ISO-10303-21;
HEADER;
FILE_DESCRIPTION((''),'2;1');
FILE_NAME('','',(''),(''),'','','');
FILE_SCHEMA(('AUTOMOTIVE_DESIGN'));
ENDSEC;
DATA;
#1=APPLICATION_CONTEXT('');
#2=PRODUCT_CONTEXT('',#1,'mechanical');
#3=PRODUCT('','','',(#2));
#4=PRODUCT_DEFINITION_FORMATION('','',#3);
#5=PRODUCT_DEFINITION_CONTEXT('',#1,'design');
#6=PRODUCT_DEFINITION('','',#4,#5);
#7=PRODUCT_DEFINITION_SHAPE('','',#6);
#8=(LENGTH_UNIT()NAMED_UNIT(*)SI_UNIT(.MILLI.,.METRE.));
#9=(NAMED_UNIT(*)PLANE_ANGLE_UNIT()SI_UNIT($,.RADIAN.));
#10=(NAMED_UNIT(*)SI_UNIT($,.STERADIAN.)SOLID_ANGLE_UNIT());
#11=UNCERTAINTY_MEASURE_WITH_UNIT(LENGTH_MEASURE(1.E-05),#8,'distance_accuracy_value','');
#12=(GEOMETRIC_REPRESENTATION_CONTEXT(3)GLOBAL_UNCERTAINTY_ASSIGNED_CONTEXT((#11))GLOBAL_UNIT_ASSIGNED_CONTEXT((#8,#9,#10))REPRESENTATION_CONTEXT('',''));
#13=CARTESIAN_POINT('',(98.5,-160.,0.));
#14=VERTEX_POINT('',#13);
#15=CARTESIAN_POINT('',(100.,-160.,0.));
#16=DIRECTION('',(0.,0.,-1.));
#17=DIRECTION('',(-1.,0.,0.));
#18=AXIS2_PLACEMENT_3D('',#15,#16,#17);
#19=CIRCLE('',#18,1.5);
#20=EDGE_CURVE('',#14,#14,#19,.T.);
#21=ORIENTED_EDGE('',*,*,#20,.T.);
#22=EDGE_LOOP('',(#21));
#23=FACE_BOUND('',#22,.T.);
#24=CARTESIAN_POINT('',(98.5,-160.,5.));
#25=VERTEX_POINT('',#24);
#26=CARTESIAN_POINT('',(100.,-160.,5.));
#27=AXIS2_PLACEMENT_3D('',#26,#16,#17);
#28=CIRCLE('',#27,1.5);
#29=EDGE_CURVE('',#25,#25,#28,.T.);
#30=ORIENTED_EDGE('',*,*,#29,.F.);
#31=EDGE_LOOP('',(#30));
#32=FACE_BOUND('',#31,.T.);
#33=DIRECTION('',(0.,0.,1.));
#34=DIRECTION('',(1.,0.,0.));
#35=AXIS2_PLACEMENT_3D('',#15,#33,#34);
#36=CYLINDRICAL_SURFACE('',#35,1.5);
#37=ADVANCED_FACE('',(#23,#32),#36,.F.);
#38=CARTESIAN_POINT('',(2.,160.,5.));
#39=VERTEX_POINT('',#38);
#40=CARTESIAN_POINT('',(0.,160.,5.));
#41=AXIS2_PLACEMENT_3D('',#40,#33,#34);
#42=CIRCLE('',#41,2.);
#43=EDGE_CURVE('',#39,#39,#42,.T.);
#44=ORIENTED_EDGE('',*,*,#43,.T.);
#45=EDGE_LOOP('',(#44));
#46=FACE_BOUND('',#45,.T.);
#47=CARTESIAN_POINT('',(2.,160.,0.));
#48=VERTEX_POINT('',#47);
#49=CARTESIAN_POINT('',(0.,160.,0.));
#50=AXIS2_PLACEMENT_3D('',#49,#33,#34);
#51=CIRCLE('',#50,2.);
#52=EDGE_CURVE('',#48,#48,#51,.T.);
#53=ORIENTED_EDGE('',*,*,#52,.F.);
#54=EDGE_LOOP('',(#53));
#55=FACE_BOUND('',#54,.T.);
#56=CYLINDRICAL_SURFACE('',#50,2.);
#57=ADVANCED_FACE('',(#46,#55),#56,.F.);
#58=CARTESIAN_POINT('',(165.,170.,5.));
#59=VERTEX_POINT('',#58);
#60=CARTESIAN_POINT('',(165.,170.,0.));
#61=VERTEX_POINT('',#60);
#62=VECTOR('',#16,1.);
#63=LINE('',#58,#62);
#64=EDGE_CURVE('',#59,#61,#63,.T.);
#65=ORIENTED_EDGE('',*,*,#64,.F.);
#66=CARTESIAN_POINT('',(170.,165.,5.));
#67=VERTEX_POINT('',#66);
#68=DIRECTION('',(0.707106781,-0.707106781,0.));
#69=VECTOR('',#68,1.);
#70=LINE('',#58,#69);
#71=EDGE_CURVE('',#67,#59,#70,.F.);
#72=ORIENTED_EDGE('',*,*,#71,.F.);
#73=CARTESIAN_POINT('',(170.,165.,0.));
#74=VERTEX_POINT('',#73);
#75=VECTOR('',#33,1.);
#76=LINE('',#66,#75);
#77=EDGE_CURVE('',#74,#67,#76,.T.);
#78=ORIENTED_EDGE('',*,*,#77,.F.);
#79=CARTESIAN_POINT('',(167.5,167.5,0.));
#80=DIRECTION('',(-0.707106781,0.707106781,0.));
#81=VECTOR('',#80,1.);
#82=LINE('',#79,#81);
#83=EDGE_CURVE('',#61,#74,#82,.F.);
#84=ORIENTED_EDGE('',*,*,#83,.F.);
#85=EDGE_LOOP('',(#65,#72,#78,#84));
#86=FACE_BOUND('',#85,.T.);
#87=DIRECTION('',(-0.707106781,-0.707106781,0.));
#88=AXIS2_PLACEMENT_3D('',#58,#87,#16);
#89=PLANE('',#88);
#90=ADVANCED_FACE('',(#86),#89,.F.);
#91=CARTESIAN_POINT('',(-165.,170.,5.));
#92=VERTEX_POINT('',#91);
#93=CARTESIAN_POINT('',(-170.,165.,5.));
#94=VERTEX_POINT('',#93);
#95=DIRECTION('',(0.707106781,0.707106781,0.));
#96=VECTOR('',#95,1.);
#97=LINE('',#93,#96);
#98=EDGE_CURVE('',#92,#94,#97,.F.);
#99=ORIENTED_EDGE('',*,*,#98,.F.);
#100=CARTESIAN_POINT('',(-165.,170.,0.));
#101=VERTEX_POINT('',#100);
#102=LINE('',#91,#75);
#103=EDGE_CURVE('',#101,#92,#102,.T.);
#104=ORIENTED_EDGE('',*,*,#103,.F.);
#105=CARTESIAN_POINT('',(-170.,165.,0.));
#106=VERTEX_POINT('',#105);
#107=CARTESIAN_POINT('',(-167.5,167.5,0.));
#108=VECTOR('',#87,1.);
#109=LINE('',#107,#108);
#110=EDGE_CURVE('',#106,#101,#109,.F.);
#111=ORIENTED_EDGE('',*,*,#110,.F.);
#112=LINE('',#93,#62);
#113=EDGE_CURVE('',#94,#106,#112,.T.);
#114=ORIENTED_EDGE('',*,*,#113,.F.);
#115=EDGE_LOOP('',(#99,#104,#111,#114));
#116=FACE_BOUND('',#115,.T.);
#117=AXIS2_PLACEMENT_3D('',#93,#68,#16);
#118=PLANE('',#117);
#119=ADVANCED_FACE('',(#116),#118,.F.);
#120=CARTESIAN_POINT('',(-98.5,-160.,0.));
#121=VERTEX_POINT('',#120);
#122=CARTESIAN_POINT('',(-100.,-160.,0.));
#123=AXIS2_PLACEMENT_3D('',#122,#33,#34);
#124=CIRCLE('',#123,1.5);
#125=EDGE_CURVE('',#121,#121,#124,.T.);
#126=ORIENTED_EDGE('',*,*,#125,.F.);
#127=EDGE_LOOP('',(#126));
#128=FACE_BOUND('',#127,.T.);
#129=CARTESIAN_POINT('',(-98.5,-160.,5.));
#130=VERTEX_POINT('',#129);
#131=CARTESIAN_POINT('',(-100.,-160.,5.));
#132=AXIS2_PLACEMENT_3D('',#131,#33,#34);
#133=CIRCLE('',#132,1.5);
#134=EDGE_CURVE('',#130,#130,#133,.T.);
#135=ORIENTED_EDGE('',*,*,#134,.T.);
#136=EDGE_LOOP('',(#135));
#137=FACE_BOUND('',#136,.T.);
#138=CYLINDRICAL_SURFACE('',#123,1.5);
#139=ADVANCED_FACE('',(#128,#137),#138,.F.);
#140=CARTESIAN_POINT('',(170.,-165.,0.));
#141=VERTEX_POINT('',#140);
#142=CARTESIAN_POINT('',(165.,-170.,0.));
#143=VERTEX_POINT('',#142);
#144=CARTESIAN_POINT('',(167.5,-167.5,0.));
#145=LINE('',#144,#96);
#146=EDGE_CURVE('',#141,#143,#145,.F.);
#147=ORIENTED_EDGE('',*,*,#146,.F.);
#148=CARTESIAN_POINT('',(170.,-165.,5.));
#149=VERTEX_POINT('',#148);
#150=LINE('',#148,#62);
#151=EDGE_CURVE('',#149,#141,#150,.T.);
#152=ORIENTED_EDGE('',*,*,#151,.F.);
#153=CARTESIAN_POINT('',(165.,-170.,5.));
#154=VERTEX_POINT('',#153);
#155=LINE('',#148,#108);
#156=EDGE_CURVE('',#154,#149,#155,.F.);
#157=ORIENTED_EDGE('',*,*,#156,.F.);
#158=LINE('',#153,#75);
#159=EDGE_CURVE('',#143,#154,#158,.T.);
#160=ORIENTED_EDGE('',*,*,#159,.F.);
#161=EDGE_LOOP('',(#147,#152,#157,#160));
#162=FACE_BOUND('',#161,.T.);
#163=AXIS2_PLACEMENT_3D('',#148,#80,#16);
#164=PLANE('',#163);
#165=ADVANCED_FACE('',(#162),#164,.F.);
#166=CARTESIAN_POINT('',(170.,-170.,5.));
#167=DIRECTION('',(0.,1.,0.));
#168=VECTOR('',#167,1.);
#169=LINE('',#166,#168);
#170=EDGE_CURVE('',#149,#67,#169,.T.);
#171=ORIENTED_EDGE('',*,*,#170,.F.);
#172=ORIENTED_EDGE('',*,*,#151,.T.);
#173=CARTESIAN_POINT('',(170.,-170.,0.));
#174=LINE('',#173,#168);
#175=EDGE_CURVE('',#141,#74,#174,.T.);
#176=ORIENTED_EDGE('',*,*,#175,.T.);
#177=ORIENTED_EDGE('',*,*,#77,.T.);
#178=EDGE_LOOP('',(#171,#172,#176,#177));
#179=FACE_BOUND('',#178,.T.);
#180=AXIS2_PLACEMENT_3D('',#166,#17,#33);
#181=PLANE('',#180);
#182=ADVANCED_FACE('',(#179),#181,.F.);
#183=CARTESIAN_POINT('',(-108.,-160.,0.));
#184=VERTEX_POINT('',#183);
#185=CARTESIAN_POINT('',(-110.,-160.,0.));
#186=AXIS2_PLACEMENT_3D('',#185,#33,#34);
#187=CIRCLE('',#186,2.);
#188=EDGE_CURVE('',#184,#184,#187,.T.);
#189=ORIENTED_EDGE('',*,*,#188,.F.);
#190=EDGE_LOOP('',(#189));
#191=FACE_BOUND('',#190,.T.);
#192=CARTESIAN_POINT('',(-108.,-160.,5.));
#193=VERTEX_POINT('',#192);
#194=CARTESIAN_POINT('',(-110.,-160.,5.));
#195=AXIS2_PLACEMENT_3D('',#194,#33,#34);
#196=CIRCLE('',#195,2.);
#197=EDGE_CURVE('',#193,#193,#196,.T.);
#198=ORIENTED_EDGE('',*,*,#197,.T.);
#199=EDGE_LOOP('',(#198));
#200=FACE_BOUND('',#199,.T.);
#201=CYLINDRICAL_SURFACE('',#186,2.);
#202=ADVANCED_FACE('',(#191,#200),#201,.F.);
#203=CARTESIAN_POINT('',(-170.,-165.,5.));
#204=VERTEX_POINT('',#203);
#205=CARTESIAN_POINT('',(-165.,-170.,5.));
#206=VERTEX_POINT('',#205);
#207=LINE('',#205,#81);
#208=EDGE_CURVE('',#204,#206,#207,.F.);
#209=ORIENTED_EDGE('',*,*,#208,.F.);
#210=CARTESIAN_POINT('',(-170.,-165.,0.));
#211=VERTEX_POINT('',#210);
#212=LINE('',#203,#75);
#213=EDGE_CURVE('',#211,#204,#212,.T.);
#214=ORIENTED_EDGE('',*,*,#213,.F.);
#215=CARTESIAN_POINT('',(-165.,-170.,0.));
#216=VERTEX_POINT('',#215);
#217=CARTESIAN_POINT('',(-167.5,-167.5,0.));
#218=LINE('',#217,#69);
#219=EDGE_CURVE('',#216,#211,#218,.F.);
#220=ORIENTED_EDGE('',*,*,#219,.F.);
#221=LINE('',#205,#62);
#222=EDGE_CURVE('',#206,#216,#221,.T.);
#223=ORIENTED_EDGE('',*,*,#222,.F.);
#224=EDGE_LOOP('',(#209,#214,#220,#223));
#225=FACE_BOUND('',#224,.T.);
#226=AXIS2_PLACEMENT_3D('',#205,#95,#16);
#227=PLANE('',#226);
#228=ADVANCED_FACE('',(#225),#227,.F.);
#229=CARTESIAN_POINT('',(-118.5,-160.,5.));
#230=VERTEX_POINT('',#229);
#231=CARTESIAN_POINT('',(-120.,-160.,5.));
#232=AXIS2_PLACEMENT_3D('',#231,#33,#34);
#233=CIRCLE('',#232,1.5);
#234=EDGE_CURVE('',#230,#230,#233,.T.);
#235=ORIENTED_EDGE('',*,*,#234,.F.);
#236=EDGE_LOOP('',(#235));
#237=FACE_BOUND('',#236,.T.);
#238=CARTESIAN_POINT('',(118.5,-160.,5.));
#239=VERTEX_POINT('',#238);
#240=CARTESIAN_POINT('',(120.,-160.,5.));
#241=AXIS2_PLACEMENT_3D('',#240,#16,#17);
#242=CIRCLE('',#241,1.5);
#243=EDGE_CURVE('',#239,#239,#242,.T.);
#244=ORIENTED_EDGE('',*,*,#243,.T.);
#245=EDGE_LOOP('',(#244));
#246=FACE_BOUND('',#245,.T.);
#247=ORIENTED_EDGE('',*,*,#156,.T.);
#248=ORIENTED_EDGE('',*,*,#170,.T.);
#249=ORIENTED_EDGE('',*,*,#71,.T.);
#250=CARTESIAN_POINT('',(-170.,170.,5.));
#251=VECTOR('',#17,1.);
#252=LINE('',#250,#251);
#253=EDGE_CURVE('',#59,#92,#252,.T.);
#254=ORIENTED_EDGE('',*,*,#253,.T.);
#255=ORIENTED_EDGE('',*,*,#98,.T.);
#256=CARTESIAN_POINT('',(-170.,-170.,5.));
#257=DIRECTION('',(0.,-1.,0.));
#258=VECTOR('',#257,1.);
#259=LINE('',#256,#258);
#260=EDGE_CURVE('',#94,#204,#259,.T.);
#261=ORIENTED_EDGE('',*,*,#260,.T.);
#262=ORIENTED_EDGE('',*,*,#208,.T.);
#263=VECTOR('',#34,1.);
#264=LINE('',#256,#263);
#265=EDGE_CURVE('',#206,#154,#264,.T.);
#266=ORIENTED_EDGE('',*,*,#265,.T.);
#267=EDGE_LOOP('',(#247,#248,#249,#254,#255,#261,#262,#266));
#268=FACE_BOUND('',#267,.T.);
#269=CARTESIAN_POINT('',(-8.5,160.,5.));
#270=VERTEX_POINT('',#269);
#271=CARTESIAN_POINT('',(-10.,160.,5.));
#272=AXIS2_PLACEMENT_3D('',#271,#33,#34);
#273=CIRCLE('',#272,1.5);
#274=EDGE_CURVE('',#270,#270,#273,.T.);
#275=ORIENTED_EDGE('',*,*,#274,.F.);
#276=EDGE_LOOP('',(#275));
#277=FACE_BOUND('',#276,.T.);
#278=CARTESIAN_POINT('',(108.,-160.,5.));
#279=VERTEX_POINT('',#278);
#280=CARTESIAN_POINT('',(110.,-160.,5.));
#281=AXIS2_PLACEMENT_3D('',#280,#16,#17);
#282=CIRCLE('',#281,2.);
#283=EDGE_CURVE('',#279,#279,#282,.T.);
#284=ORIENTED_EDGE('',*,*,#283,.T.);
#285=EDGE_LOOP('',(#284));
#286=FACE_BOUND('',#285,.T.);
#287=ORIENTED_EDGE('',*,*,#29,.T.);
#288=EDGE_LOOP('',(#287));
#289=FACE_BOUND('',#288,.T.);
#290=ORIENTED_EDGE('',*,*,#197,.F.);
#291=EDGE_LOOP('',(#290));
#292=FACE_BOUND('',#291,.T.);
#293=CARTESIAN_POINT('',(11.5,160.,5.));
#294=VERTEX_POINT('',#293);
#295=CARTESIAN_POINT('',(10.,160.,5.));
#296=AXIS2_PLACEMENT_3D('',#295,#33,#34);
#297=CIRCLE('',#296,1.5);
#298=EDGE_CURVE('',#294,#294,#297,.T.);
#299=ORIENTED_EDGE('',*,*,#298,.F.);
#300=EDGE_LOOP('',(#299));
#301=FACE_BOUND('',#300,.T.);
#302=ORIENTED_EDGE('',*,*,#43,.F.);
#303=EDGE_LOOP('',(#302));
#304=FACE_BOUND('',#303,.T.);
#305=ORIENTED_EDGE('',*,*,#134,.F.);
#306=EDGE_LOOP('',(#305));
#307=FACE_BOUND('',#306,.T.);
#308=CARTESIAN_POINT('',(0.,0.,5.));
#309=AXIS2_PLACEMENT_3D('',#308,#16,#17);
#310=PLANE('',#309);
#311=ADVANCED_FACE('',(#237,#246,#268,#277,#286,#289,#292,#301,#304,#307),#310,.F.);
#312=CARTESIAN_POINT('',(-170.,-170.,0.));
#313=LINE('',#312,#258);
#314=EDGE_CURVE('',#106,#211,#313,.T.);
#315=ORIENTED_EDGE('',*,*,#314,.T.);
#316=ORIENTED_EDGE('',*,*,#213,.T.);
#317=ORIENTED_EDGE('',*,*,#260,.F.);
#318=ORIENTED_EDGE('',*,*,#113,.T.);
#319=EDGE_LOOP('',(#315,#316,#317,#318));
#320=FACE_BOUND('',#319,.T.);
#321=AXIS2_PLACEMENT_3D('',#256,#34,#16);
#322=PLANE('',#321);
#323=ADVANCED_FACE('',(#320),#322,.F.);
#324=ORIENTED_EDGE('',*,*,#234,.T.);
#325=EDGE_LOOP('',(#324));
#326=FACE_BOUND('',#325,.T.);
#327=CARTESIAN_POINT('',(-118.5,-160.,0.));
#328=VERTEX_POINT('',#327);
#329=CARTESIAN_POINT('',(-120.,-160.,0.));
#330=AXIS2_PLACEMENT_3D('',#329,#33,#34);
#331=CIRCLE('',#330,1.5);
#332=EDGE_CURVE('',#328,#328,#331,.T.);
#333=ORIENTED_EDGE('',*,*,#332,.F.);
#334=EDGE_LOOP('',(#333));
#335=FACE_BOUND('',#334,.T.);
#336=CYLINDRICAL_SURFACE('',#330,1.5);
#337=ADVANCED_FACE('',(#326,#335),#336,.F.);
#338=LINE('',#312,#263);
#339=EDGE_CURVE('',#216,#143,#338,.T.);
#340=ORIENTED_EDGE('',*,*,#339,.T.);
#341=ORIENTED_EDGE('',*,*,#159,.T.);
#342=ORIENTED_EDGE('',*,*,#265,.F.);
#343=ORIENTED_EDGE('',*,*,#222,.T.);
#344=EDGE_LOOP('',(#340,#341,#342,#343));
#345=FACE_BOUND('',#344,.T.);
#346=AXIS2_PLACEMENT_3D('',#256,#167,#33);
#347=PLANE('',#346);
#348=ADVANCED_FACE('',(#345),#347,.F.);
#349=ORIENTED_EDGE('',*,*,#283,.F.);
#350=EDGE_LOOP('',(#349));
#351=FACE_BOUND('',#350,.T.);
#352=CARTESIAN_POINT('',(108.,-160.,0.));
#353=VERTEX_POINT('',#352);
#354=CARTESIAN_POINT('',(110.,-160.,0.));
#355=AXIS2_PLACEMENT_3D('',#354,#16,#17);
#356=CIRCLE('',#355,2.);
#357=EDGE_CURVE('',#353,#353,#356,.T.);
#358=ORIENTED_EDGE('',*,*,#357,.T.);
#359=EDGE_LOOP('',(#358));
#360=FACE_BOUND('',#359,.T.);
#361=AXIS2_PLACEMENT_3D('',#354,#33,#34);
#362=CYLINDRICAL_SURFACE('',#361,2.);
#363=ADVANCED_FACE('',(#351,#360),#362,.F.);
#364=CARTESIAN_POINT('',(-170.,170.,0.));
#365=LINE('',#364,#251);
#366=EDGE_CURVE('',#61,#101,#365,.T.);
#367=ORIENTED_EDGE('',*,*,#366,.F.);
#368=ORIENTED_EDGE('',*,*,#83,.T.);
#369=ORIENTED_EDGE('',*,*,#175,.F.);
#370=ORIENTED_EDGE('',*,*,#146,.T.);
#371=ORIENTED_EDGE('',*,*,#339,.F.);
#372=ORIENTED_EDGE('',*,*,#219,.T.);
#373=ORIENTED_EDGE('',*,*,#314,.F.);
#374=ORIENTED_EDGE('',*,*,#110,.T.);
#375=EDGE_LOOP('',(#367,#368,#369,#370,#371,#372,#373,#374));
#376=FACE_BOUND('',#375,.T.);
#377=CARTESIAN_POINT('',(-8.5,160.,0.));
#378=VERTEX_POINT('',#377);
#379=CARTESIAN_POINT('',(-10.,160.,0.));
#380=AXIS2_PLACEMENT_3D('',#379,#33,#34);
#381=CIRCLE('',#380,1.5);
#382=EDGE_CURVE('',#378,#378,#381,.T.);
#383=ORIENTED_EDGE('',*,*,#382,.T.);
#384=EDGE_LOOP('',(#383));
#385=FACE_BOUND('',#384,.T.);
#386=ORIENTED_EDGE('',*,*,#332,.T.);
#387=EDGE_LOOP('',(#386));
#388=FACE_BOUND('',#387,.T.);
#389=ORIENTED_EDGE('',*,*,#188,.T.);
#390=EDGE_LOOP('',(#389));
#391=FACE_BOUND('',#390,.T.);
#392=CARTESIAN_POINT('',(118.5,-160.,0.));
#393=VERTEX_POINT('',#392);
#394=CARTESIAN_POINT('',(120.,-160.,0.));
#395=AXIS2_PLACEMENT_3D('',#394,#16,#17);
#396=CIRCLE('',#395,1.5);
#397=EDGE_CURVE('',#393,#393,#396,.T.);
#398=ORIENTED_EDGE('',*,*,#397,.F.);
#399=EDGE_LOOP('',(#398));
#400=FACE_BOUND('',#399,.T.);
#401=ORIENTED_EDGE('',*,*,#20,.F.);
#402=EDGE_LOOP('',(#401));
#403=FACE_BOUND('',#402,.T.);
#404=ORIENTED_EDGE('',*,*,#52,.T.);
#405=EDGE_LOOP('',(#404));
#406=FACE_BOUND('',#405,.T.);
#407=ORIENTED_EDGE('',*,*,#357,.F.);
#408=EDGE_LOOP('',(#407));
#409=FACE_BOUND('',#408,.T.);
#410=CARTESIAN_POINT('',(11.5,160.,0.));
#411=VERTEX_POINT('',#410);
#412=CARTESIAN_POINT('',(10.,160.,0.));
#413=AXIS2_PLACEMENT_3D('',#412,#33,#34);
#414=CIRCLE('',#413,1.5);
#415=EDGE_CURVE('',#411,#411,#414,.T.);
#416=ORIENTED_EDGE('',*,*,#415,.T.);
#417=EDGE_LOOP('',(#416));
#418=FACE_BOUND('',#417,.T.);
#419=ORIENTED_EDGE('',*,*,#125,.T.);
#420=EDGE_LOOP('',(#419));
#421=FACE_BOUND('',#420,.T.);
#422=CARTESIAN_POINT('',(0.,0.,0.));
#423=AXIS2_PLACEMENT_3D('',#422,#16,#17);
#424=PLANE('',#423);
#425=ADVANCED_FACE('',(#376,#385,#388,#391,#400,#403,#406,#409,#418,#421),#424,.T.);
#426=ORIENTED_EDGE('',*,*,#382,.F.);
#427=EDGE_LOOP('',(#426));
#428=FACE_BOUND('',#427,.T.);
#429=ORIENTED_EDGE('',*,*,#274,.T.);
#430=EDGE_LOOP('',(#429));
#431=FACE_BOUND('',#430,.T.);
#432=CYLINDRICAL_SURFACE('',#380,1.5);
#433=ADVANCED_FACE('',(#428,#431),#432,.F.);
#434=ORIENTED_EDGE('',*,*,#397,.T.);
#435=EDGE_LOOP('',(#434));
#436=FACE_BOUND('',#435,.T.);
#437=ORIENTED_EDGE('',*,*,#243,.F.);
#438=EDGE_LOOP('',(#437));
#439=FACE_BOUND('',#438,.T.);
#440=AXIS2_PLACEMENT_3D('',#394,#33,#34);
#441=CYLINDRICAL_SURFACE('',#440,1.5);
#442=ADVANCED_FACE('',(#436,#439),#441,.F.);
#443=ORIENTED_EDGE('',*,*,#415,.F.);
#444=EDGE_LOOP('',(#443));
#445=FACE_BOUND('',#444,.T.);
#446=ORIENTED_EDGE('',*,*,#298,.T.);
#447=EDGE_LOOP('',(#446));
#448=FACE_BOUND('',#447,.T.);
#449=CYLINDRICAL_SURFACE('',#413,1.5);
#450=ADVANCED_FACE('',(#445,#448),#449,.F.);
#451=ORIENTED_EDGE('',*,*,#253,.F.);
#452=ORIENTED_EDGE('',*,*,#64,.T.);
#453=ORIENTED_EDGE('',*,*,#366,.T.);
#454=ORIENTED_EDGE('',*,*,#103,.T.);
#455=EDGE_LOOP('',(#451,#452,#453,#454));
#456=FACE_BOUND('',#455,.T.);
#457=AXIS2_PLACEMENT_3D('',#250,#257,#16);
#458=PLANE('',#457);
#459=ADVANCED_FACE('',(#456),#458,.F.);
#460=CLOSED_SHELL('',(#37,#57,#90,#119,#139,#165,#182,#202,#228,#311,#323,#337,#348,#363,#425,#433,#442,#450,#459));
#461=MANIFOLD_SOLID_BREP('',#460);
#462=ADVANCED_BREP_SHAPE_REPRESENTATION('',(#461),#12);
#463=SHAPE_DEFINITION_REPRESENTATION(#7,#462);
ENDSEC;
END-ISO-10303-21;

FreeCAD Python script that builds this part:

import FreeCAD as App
import Part
import Sketcher
from FreeCAD import Vector


def edges_at(feature, points):
    """Names of the edges that pass closest to the given points."""
    edges = feature.Shape.Edges
    near = lambda p: min(range(len(edges)), key=lambda i: edges[i].distToShape(Part.Vertex(*p))[0])
    return sorted({f"Edge{near(p) + 1}" for p in points})

doc = App.newDocument("Part")
params = doc.addObject("Spreadsheet::Sheet", "Params")
for row, (alias, value) in enumerate([
    ("sketch1_width", "340 mm"),
    ("pad1_length", "5 mm"),
    ("sketch2_diameter", "3 mm"),
    ("sketch2_diameter2", "4 mm"),
    ("chamfer_size", "5 mm"),
], start=1):
    params.set(f"A{row}", alias)
    params.set(f"B{row}", "=" + value)
    params.setAlias(f"B{row}", alias)

body = doc.addObject("PartDesign::Body", "Body")

# Sketch on XY plane
sketch1 = doc.addObject("Sketcher::SketchObject", "Sketch")
body.addObject(sketch1)
sketch1.AttachmentSupport = (doc.XY_Plane, [""])
sketch1.MapMode = "FlatFace"
sketch1.addGeometry(Part.LineSegment(Vector(-170, 170, 0), Vector(-170, -170, 0)), False)
sketch1.addGeometry(Part.LineSegment(Vector(-170, -170, 0), Vector(170, -170, 0)), False)
sketch1.addGeometry(Part.LineSegment(Vector(170, -170, 0), Vector(170, 170, 0)), False)
sketch1.addGeometry(Part.LineSegment(Vector(170, 170, 0), Vector(-170, 170, 0)), False)
sketch1.addConstraint(Sketcher.Constraint("Coincident", 0, 2, 1, 1))
sketch1.addConstraint(Sketcher.Constraint("Coincident", 1, 2, 2, 1))
sketch1.addConstraint(Sketcher.Constraint("Coincident", 2, 2, 3, 1))
sketch1.addConstraint(Sketcher.Constraint("Coincident", 3, 2, 0, 1))
sketch1.addConstraint(Sketcher.Constraint("Vertical", 0))
sketch1.addConstraint(Sketcher.Constraint("Horizontal", 1))
sketch1.addConstraint(Sketcher.Constraint("Vertical", 2))
sketch1.addConstraint(Sketcher.Constraint("Horizontal", 3))
sketch1.addConstraint(Sketcher.Constraint("Symmetric", 0, 2, 2, 2, -1, 1))
sketch1.addConstraint(Sketcher.Constraint("Equal", 3, 0))
sketch1.addConstraint(Sketcher.Constraint("DistanceX", 1, 1, 1, 2, 340.0))
sketch1.setExpression("Constraints[10]", "Params.sketch1_width")
pad1 = doc.addObject("PartDesign::Pad", "Pad")
body.addObject(pad1)
pad1.Profile = sketch1
pad1.setExpression("Length", "Params.pad1_length")

# Sketch on XY plane
sketch2 = doc.addObject("Sketcher::SketchObject", "Sketch001")
body.addObject(sketch2)
sketch2.AttachmentSupport = (doc.XY_Plane, [""])
sketch2.MapMode = "FlatFace"
sketch2.AttachmentOffset = App.Placement(Vector(0, 0, 5), App.Rotation())
sketch2.addGeometry(Part.Circle(Vector(-120, -160, 0), Vector(0, 0, 1), 1.5), False)
sketch2.addGeometry(Part.Circle(Vector(-110, -160, 0), Vector(0, 0, 1), 2), False)
sketch2.addGeometry(Part.Circle(Vector(-100, -160, 0), Vector(0, 0, 1), 1.5), False)
sketch2.addGeometry(Part.Circle(Vector(-10, 160, 0), Vector(0, 0, 1), 1.5), False)
sketch2.addGeometry(Part.Circle(Vector(0, 160, 0), Vector(0, 0, 1), 2), False)
sketch2.addGeometry(Part.Circle(Vector(10, 160, 0), Vector(0, 0, 1), 1.5), False)
sketch2.addConstraint(Sketcher.Constraint("Equal", 0, 2))
sketch2.addConstraint(Sketcher.Constraint("Equal", 2, 3))
sketch2.addConstraint(Sketcher.Constraint("Equal", 1, 4))
sketch2.addConstraint(Sketcher.Constraint("Equal", 3, 5))
sketch2.addConstraint(Sketcher.Constraint("Symmetric", 3, 3, 5, 3, -2))
sketch2.addConstraint(Sketcher.Constraint("PointOnObject", 4, 3, -2))
sketch2.addConstraint(Sketcher.Constraint("Horizontal", 0, 3, 1, 3))
sketch2.addConstraint(Sketcher.Constraint("Horizontal", 1, 3, 2, 3))
sketch2.addConstraint(Sketcher.Constraint("Horizontal", 3, 3, 4, 3))
sketch2.addConstraint(Sketcher.Constraint("Diameter", 0, 3.0))
sketch2.addConstraint(Sketcher.Constraint("Diameter", 1, 4.0))
sketch2.addConstraint(Sketcher.Constraint("DistanceX", 0, 3, -1, 1, 120.0))
sketch2.addConstraint(Sketcher.Constraint("DistanceY", 0, 3, -1, 1, 160.0))
sketch2.addConstraint(Sketcher.Constraint("DistanceX", 1, 3, -1, 1, 110.0))
sketch2.addConstraint(Sketcher.Constraint("DistanceX", 2, 3, -1, 1, 100.0))
sketch2.addConstraint(Sketcher.Constraint("DistanceX", 3, 3, -1, 1, 10.0))
sketch2.addConstraint(Sketcher.Constraint("DistanceY", -1, 1, 3, 3, 160.0))
sketch2.setExpression("Constraints[9]", "Params.sketch2_diameter")
sketch2.setExpression("Constraints[10]", "Params.sketch2_diameter2")
pocket1 = doc.addObject("PartDesign::Pocket", "Pocket")
body.addObject(pocket1)
pocket1.Profile = sketch2
pocket1.Type = "ThroughAll"
doc.recompute()

mirrored = doc.addObject("PartDesign::Mirrored", "Mirrored")
body.addObject(mirrored)
mirrored.Originals = [pocket1]
mirrored.MirrorPlane = (doc.YZ_Plane, [""])
body.Tip = mirrored
doc.recompute()

chamfer = doc.addObject("PartDesign::Chamfer", "Chamfer")
body.addObject(chamfer)
chamfer.Base = (mirrored, edges_at(mirrored, [
    (170, -170, 2.5),
    (-170, -170, 2.5),
    (-170, 170, 2.5),
    (170, 170, 2.5),
]))
chamfer.setExpression("Size", "Params.chamfer_size")

doc.recompute()
